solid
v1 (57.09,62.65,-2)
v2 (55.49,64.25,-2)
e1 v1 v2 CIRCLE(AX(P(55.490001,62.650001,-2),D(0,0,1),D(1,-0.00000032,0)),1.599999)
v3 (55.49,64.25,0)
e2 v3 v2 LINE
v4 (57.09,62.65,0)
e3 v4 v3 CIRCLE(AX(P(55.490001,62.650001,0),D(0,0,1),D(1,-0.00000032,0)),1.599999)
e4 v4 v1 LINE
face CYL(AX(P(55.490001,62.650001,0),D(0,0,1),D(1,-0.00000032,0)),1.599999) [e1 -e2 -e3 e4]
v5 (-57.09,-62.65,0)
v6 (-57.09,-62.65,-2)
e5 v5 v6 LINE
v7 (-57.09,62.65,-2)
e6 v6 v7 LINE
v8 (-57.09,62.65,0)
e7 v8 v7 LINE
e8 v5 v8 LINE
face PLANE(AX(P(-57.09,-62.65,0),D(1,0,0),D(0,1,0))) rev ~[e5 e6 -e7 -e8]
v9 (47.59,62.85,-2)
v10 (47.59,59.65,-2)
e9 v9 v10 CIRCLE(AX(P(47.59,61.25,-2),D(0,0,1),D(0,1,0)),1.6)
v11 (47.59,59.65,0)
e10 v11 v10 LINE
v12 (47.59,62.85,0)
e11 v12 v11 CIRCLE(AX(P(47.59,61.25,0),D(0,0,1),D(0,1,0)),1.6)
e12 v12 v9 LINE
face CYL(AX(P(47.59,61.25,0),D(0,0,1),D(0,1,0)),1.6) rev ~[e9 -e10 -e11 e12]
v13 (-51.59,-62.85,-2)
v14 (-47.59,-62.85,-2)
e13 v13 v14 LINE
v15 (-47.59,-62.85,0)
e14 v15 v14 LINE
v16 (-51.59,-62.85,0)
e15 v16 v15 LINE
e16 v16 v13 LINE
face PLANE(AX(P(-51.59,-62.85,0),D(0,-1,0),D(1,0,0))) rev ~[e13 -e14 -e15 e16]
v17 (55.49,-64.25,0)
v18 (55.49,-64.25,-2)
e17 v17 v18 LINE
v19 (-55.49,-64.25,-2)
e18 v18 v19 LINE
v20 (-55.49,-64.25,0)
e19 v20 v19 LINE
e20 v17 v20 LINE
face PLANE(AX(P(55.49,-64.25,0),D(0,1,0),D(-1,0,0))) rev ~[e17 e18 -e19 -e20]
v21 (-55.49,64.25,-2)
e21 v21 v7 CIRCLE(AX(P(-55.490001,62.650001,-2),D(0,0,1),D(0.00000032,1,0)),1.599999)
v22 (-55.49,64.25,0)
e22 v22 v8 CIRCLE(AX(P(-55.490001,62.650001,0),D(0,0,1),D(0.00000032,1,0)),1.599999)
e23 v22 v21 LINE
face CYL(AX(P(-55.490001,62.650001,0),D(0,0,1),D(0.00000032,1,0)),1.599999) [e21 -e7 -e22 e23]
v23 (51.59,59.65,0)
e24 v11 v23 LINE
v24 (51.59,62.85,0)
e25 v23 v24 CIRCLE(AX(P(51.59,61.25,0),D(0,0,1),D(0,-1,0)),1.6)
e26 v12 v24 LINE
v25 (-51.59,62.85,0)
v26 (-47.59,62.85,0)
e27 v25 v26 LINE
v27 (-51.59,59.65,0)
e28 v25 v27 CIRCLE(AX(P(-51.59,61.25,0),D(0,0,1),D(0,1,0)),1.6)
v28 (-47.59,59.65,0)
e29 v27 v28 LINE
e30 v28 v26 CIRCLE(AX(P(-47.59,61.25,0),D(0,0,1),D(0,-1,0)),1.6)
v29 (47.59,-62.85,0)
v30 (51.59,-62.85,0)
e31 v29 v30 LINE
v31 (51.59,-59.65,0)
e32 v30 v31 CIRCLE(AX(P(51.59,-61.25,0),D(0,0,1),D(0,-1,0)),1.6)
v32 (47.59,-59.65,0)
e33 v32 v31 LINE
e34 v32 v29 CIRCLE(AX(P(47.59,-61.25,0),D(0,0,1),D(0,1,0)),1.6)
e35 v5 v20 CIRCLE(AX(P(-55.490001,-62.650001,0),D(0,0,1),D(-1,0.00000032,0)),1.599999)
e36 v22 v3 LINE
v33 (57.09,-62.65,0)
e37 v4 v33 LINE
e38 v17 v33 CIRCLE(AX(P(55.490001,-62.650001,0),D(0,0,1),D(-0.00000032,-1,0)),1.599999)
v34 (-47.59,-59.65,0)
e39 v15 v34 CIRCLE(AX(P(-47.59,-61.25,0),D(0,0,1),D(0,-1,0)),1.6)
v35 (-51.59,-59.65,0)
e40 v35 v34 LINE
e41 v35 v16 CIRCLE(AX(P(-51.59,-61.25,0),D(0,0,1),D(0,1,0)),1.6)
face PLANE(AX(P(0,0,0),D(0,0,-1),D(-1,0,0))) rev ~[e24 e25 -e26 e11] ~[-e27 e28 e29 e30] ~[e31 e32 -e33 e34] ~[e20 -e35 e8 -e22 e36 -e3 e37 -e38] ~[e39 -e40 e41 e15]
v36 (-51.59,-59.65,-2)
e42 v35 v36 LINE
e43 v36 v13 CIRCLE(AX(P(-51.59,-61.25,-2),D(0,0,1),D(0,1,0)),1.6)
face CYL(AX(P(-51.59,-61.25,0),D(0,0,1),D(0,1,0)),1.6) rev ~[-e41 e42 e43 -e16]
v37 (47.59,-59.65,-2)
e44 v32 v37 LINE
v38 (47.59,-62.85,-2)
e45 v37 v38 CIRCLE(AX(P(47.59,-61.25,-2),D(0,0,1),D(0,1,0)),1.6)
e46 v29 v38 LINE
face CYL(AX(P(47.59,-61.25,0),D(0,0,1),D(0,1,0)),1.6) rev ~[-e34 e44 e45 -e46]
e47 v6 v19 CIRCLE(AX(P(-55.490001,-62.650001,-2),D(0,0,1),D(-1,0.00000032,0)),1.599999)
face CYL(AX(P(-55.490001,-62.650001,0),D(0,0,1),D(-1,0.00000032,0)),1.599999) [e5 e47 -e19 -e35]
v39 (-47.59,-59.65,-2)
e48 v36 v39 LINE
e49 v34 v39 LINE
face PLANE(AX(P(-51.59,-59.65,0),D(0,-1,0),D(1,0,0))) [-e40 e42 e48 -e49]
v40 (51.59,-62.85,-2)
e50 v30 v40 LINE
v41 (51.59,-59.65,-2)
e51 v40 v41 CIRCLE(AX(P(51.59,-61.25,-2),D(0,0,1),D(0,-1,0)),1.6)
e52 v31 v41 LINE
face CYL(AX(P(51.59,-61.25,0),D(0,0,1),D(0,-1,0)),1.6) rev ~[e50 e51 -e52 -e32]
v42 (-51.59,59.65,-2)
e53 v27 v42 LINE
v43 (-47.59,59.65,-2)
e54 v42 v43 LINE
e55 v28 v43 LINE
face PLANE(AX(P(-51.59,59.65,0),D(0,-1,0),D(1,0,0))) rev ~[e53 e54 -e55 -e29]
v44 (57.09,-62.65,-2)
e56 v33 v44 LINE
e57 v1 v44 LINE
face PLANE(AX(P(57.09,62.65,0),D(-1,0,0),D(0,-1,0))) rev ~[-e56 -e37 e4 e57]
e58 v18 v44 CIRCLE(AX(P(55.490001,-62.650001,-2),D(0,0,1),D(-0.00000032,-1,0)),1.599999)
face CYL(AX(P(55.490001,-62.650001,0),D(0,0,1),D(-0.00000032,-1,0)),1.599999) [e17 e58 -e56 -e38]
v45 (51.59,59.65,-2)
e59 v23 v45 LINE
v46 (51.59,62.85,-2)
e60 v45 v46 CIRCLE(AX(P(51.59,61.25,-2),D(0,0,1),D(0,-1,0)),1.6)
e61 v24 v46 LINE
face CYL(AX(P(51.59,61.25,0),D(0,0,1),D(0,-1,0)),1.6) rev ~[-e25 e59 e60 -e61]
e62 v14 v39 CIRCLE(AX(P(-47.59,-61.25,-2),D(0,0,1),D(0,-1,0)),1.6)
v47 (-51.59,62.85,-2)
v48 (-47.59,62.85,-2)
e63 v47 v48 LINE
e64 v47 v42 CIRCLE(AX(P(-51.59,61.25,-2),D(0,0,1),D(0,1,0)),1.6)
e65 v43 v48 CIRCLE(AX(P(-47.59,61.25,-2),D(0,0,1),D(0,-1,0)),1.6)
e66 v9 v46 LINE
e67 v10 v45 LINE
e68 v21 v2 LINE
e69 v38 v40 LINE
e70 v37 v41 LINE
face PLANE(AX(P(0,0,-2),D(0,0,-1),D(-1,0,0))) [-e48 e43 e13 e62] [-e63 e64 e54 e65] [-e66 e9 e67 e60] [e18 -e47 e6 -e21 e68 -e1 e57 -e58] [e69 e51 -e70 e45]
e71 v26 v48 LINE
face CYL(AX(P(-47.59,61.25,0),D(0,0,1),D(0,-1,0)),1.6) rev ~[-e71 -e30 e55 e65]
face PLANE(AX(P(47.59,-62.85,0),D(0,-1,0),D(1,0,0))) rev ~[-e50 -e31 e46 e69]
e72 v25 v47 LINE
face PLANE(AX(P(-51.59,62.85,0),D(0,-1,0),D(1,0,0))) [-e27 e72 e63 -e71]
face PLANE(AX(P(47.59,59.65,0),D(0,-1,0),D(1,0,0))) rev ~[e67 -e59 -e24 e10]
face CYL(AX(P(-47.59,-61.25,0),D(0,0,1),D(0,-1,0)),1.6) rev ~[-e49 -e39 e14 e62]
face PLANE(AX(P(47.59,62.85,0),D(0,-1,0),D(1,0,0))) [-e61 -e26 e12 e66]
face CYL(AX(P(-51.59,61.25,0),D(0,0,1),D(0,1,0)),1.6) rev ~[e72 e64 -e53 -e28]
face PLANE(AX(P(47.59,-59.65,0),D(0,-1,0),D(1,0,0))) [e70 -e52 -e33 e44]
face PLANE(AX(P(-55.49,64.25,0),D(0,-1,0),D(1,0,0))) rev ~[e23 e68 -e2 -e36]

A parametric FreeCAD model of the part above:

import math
import FreeCAD as App
import Part
import Sketcher

V = App.Vector
Q = App.Units.Quantity

doc = App.newDocument("Part")
body = doc.addObject("PartDesign::Body", "Body")

sketch1 = doc.addObject("Sketcher::SketchObject", "Sketch")
body.addObject(sketch1)
sketch1.AttachmentSupport = (doc.XY_Plane, [""])
sketch1.MapMode = "FlatFace"
sketch1.addGeometry([
    Part.LineSegment(V(55.5, 64.2, 0), V(-55.5, 64.2, 0)),
    Part.ArcOfCircle(Part.Circle(V(-55.5, 62.7, 0), V(0, 0, 1), 1.6), math.radians(90), math.radians(180)),
    Part.LineSegment(V(-57.1, 62.6, 0), V(-57.1, -62.6, 0)),
    Part.ArcOfCircle(Part.Circle(V(-55.5, -62.7, 0), V(0, 0, 1), 1.6), math.radians(180), math.radians(270)),
    Part.LineSegment(V(-55.5, -64.2, 0), V(55.5, -64.2, 0)),
    Part.ArcOfCircle(Part.Circle(V(55.5, -62.7, 0), V(0, 0, 1), 1.6), math.radians(-90), math.radians(0)),
    Part.LineSegment(V(57.1, -62.6, 0), V(57.1, 62.6, 0)),
    Part.ArcOfCircle(Part.Circle(V(55.5, 62.7, 0), V(0, 0, 1), 1.6), math.radians(0), math.radians(90)),
    Part.LineSegment(V(47.6, -59.6, 0), V(51.6, -59.6, 0)),
    Part.ArcOfCircle(Part.Circle(V(51.6, -61.2, 0), V(0, 0, 1), 1.6), math.radians(-90), math.radians(90)),
    Part.LineSegment(V(51.6, -62.9, 0), V(47.6, -62.9, 0)),
    Part.ArcOfCircle(Part.Circle(V(47.6, -61.2, 0), V(0, 0, 1), 1.6), math.radians(90), math.radians(270)),
    Part.LineSegment(V(-51.6, -59.6, 0), V(-47.6, -59.6, 0)),
    Part.ArcOfCircle(Part.Circle(V(-47.6, -61.2, 0), V(0, 0, 1), 1.6), math.radians(-90), math.radians(90)),
    Part.LineSegment(V(-47.6, -62.9, 0), V(-51.6, -62.9, 0)),
    Part.ArcOfCircle(Part.Circle(V(-51.6, -61.2, 0), V(0, 0, 1), 1.6), math.radians(90), math.radians(270)),
    Part.LineSegment(V(47.6, 62.9, 0), V(51.6, 62.9, 0)),
    Part.ArcOfCircle(Part.Circle(V(51.6, 61.2, 0), V(0, 0, 1), 1.6), math.radians(-90), math.radians(90)),
    Part.LineSegment(V(51.6, 59.6, 0), V(47.6, 59.6, 0)),
    Part.ArcOfCircle(Part.Circle(V(47.6, 61.2, 0), V(0, 0, 1), 1.6), math.radians(90), math.radians(270)),
    Part.LineSegment(V(-51.6, 62.9, 0), V(-47.6, 62.9, 0)),
    Part.ArcOfCircle(Part.Circle(V(-47.6, 61.2, 0), V(0, 0, 1), 1.6), math.radians(-90), math.radians(90)),
    Part.LineSegment(V(-47.6, 59.6, 0), V(-51.6, 59.6, 0)),
    Part.ArcOfCircle(Part.Circle(V(-51.6, 61.2, 0), V(0, 0, 1), 1.6), math.radians(90), math.radians(270)),
], False)
sketch1.addConstraint([
    Sketcher.Constraint("Tangent", 0, 2, 1, 1),
    Sketcher.Constraint("Tangent", 1, 2, 2, 1),
    Sketcher.Constraint("Tangent", 2, 2, 3, 1),
    Sketcher.Constraint("Tangent", 3, 2, 4, 1),
    Sketcher.Constraint("Tangent", 4, 2, 5, 1),
    Sketcher.Constraint("Tangent", 5, 2, 6, 1),
    Sketcher.Constraint("Tangent", 6, 2, 7, 1),
    Sketcher.Constraint("Tangent", 7, 2, 0, 1),
    Sketcher.Constraint("Tangent", 8, 2, 9, 2),
    Sketcher.Constraint("Tangent", 9, 1, 10, 1),
    Sketcher.Constraint("Tangent", 10, 2, 11, 2),
    Sketcher.Constraint("Tangent", 11, 1, 8, 1),
    Sketcher.Constraint("Tangent", 12, 2, 13, 2),
    Sketcher.Constraint("Tangent", 13, 1, 14, 1),
    Sketcher.Constraint("Tangent", 14, 2, 15, 2),
    Sketcher.Constraint("Tangent", 15, 1, 12, 1),
    Sketcher.Constraint("Tangent", 16, 2, 17, 2),
    Sketcher.Constraint("Tangent", 17, 1, 18, 1),
    Sketcher.Constraint("Tangent", 18, 2, 19, 2),
    Sketcher.Constraint("Tangent", 19, 1, 16, 1),
    Sketcher.Constraint("Tangent", 20, 2, 21, 2),
    Sketcher.Constraint("Tangent", 21, 1, 22, 1),
    Sketcher.Constraint("Tangent", 22, 2, 23, 2),
    Sketcher.Constraint("Tangent", 23, 1, 20, 1),
    Sketcher.Constraint("Horizontal", 0),
    Sketcher.Constraint("Vertical", 2),
    Sketcher.Constraint("Horizontal", 4),
    Sketcher.Constraint("Vertical", 6),
    Sketcher.Constraint("Horizontal", 8),
    Sketcher.Constraint("Horizontal", 10),
    Sketcher.Constraint("Horizontal", 12),
    Sketcher.Constraint("Horizontal", 14),
    Sketcher.Constraint("Horizontal", 16),
    Sketcher.Constraint("Horizontal", 18),
    Sketcher.Constraint("Horizontal", 20),
    Sketcher.Constraint("Horizontal", 22),
    Sketcher.Constraint("Equal", 1, 3),
    Sketcher.Constraint("Equal", 3, 5),
    Sketcher.Constraint("Equal", 5, 7),
    Sketcher.Constraint("Equal", 7, 9),
    Sketcher.Constraint("Equal", 11, 13),
    Sketcher.Constraint("Equal", 15, 17),
    Sketcher.Constraint("Equal", 19, 21),
    Sketcher.Constraint("Symmetric", 1, 3, 5, 3, -1, 1),
    Sketcher.Constraint("Symmetric", 15, 3, 17, 3, -1, 1),
    Sketcher.Constraint("Symmetric", 11, 3, 21, 3, -1, 1),
    Sketcher.Constraint("Symmetric", 11, 3, 13, 3, -2),
    Sketcher.Constraint("Vertical", 9, 3, 17, 3),
    Sketcher.Constraint("Vertical", 11, 3, 19, 3),
    Sketcher.Constraint("Vertical", 15, 3, 23, 3),
    Sketcher.Constraint("Radius", 1, Q("1.599999 mm")),
    Sketcher.Constraint("DistanceX", 8, 1, 8, 2, Q("4 mm")),
    Sketcher.Constraint("DistanceY", 2, 2, 2, 1, Q("125.3 mm")),
    Sketcher.Constraint("DistanceY", 23, 3, 0, 2, Q("3 mm")),
    Sketcher.Constraint("DistanceX", 0, 2, 0, 1, Q("110.98 mm")),
    Sketcher.Constraint("DistanceX", 9, 3, 5, 3, Q("3.900001 mm")),
])
pad1 = doc.addObject("PartDesign::Pad", "Pad")
body.addObject(pad1)
pad1.Profile = sketch1
pad1.Length = 2
pad1.Reversed = True

doc.recompute()
